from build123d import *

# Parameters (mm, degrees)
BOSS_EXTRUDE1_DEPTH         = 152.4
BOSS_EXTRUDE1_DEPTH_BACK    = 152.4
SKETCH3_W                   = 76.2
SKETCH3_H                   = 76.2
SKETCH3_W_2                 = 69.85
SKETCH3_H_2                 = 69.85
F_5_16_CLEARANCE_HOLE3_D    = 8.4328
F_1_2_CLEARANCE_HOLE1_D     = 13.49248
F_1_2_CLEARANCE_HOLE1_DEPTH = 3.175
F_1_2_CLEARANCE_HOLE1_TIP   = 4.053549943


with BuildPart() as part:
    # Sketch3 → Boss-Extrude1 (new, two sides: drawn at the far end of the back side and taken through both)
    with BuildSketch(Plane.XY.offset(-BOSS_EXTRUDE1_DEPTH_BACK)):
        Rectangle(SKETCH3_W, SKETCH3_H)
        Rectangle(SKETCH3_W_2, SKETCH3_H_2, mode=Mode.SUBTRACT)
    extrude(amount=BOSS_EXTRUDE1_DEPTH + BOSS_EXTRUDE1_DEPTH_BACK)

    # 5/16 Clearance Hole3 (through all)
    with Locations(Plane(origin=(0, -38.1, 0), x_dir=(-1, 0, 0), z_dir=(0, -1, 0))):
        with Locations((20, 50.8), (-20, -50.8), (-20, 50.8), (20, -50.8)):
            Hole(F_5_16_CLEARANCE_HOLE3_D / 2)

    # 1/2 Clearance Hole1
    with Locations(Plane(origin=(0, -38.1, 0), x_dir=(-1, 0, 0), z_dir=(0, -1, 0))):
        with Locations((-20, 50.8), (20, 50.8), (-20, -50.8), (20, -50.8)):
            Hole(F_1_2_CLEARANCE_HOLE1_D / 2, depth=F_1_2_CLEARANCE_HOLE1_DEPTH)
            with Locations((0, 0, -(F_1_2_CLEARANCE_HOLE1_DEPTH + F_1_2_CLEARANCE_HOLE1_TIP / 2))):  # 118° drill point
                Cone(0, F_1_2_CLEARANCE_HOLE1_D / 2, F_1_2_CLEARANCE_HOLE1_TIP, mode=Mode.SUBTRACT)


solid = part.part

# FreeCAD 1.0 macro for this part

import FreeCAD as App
import Part
import Sketcher

V = App.Vector
Q = App.Units.Quantity

doc = App.newDocument("Part")
params = doc.addObject("Spreadsheet::Sheet", "Params")
for row, (alias, value) in enumerate([
    ("sketch1_width", "3 in"),
    ("sketch1_width2", "2.75 in"),
    ("pad1_length", "6 in"),
    ("pad1_length2", "6 in"),
    ("sketch2_diameter", "0.332 in"),
    ("hole_diameter", "0.332 in"),
    ("hole2_diameter", "0.5312 in"),
    ("hole2_depth", "0.125 in"),
], start=1):
    params.set(f"A{row}", alias)
    params.set(f"B{row}", "=" + value)
    params.setAlias(f"B{row}", alias)

body = doc.addObject("PartDesign::Body", "Body")

# Sketch on XY plane
sketch1 = doc.addObject("Sketcher::SketchObject", "Sketch")
body.addObject(sketch1)
sketch1.AttachmentSupport = (doc.XY_Plane, [""])
sketch1.MapMode = "FlatFace"
sketch1.addGeometry([
    Part.LineSegment(V(-38, 38, 0), V(-38, -38, 0)),  # 0
    Part.LineSegment(V(-38, -38, 0), V(38, -38, 0)),  # 1
    Part.LineSegment(V(38, -38, 0), V(38, 38, 0)),  # 2
    Part.LineSegment(V(38, 38, 0), V(-38, 38, 0)),  # 3
    Part.LineSegment(V(35, -35, 0), V(-35, -35, 0)),  # 4
    Part.LineSegment(V(-35, -35, 0), V(-35, 35, 0)),  # 5
    Part.LineSegment(V(-35, 35, 0), V(35, 35, 0)),  # 6
    Part.LineSegment(V(35, 35, 0), V(35, -35, 0)),  # 7
], False)
sketch1.addConstraint([
    Sketcher.Constraint("Coincident", 0, 2, 1, 1),
    Sketcher.Constraint("Coincident", 1, 2, 2, 1),
    Sketcher.Constraint("Coincident", 2, 2, 3, 1),
    Sketcher.Constraint("Coincident", 3, 2, 0, 1),
    Sketcher.Constraint("Coincident", 4, 2, 5, 1),
    Sketcher.Constraint("Coincident", 5, 2, 6, 1),
    Sketcher.Constraint("Coincident", 6, 2, 7, 1),
    Sketcher.Constraint("Coincident", 7, 2, 4, 1),
    Sketcher.Constraint("Vertical", 0),
    Sketcher.Constraint("Horizontal", 1),
    Sketcher.Constraint("Vertical", 2),
    Sketcher.Constraint("Horizontal", 3),
    Sketcher.Constraint("Horizontal", 4),
    Sketcher.Constraint("Vertical", 5),
    Sketcher.Constraint("Horizontal", 6),
    Sketcher.Constraint("Vertical", 7),
    Sketcher.Constraint("Symmetric", 0, 2, 2, 2, -1, 1),
    Sketcher.Constraint("Symmetric", 4, 2, 6, 2, -1, 1),
    Sketcher.Constraint("Equal", 3, 0),
    Sketcher.Constraint("Equal", 6, 5),
    Sketcher.Constraint("DistanceX", 1, 1, 1, 2, Q("3 in")),
    Sketcher.Constraint("DistanceX", 4, 2, 4, 1, Q("2.75 in")),
])
sketch1.setExpression("Constraints[20]", "Params.sketch1_width")
sketch1.setExpression("Constraints[21]", "Params.sketch1_width2")
pad1 = doc.addObject("PartDesign::Pad", "Pad")
body.addObject(pad1)
pad1.Profile = sketch1
pad1.Type = "TwoLengths"
pad1.setExpression("Length", "Params.pad1_length")
pad1.setExpression("Length2", "Params.pad1_length2")

# Sketch on XZ plane
sketch2 = doc.addObject("Sketcher::SketchObject", "Sketch001")
body.addObject(sketch2)
sketch2.AttachmentSupport = (doc.XZ_Plane, [""])
sketch2.MapMode = "FlatFace"
sketch2.AttachmentOffset = App.Placement(V(0, 0, 1.5 * 25.4), App.Rotation())
sketch2.addGeometry([
    Part.Circle(V(-20, -50.8, 0), V(0, 0, 1), 4.2),
    Part.Circle(V(20, 50.8, 0), V(0, 0, 1), 4.2),
    Part.Circle(V(20, -50.8, 0), V(0, 0, 1), 4.2),
    Part.Circle(V(-20, 50.8, 0), V(0, 0, 1), 4.2),
], False)
sketch2.addConstraint([
    Sketcher.Constraint("Equal", 0, 1),
    Sketcher.Constraint("Equal", 1, 2),
    Sketcher.Constraint("Equal", 2, 3),
    Sketcher.Constraint("Symmetric", 0, 3, 1, 3, -1, 1),
    Sketcher.Constraint("Symmetric", 2, 3, 3, 3, -1, 1),
    Sketcher.Constraint("Symmetric", 0, 3, 2, 3, -2),
    Sketcher.Constraint("Diameter", 0, Q("0.332 in")),
    Sketcher.Constraint("DistanceY", 0, 3, -1, 1, Q("2 in")),
    Sketcher.Constraint("DistanceX", 0, 3, -1, 1, 20.0),
])
sketch2.setExpression("Constraints[6]", "Params.sketch2_diameter")
doc.recompute()
hole = doc.addObject("PartDesign::Hole", "Hole")
body.addObject(hole)
hole.Profile = sketch2
hole.ThreadType = "None"
hole.setExpression("Diameter", "Params.hole_diameter")
hole.DepthType = "ThroughAll"

# Sketch on XZ plane
sketch3 = doc.addObject("Sketcher::SketchObject", "Sketch002")
body.addObject(sketch3)
sketch3.AttachmentSupport = (doc.XZ_Plane, [""])
sketch3.MapMode = "FlatFace"
sketch3.AttachmentOffset = App.Placement(V(0, 0, 1.5 * 25.4), App.Rotation())
sketch3.addGeometry([
    Part.Circle(V(20, -51, 0), V(0, 0, 1), 7),
    Part.Circle(V(-20, -51, 0), V(0, 0, 1), 7),
    Part.Circle(V(20, 51, 0), V(0, 0, 1), 7),
    Part.Circle(V(-20, 51, 0), V(0, 0, 1), 7),
], False)
sketch3.addConstraint([
    Sketcher.Constraint("Equal", 0, 1),
    Sketcher.Constraint("Equal", 1, 2),
    Sketcher.Constraint("Equal", 2, 3),
    Sketcher.Constraint("Symmetric", 1, 3, 2, 3, -1, 1),
    Sketcher.Constraint("Symmetric", 0, 3, 3, 3, -1, 1),
    Sketcher.Constraint("Symmetric", 0, 3, 1, 3, -2),
    Sketcher.Constraint("DistanceY", 0, 3, -1, 1, Q("2 in")),
    Sketcher.Constraint("Diameter", 0, Q("0.5312 in")),
    Sketcher.Constraint("DistanceX", -1, 1, 0, 3, 20.0),
])
doc.recompute()
hole2 = doc.addObject("PartDesign::Hole", "Hole001")
body.addObject(hole2)
hole2.Profile = sketch3
hole2.ThreadType = "None"
hole2.setExpression("Diameter", "Params.hole2_diameter")
hole2.DepthType = "Dimension"
hole2.setExpression("Depth", "Params.hole2_depth")
hole2.DrillPoint = "Angled"
hole2.DrillPointAngle = 118

doc.recompute()
